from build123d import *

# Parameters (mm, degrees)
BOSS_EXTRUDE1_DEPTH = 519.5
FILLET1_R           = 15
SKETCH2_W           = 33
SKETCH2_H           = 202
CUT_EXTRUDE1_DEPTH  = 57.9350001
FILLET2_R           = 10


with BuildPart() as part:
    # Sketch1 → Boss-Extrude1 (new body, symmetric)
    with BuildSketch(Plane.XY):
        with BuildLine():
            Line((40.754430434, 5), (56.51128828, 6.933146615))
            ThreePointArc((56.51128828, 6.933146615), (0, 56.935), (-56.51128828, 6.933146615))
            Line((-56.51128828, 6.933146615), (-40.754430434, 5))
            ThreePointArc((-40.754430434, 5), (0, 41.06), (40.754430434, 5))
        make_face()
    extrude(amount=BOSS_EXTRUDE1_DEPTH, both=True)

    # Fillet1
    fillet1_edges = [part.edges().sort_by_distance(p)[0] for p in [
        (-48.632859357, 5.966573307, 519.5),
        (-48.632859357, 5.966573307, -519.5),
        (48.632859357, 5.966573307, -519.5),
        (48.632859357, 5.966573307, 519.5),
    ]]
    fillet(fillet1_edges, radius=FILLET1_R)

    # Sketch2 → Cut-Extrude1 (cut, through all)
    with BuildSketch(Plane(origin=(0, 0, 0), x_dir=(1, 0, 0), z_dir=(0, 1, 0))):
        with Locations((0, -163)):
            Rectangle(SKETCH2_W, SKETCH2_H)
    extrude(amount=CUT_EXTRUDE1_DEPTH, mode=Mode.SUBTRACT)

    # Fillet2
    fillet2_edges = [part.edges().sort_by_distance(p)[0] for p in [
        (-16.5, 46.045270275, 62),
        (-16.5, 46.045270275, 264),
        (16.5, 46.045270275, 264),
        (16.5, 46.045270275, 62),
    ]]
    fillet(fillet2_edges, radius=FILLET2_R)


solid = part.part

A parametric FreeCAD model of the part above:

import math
import FreeCAD as App
import Part
import Sketcher


def edges_at(feature, points):
    """Names of the edges that pass closest to the given points."""
    edges = feature.Shape.Edges
    near = lambda p: min(range(len(edges)), key=lambda i: edges[i].distToShape(Part.Vertex(*p))[0])
    return sorted({f"Edge{near(p) + 1}" for p in points})

doc = App.newDocument("Part")
body = doc.addObject("PartDesign::Body", "Body")

# Sketch on XY plane
sketch1 = body.newObject("Sketcher::SketchObject", "Sketch")
sketch1.AttachmentSupport = (doc.getObject("XY_Plane"), [""])
sketch1.MapMode = "FlatFace"
sketch1.addGeometry([
    Part.LineSegment(App.Vector(40.75443, 5, 0), App.Vector(56.511288, 6.933147, 0)),
    Part.ArcOfCircle(Part.Circle(App.Vector(0, 0, 0), App.Vector(0, 0, 1), 56.935), math.radians(6.994439), math.radians(173.005561)),
    Part.LineSegment(App.Vector(-56.511288, 6.933147, 0), App.Vector(-40.75443, 5, 0)),
    Part.ArcOfCircle(Part.Circle(App.Vector(0, 0, 0), App.Vector(0, 0, 1), 41.06), math.radians(6.994439), math.radians(173.005561)),
], False)
sketch1.addConstraint([
    Sketcher.Constraint("Coincident", 0, 2, 1, 1),
    Sketcher.Constraint("Coincident", 1, 2, 2, 1),
    Sketcher.Constraint("Coincident", 2, 2, 3, 2),
    Sketcher.Constraint("Coincident", 3, 1, 0, 1),
    Sketcher.Constraint("Coincident", 1, 3, -1, 1),
    Sketcher.Constraint("Coincident", 3, 3, -1, 1),
    Sketcher.Constraint("Horizontal", 0, 2, 1, 2),
    Sketcher.Constraint("Horizontal", 2, 2, 3, 1),
    Sketcher.Constraint("Radius", 3, 41.06),
    Sketcher.Constraint("DistanceY", -1, 1, 2, 2, 5.0),
    Sketcher.Constraint("Radius", 1, 56.935),
    Sketcher.Constraint("DistanceX", -1, 1, 0, 2, 56.511288),
])
pad1 = body.newObject("PartDesign::Pad", "Pad")
pad1.Profile = sketch1
pad1.Length = 1039
pad1.Midplane = True
doc.recompute()

fillet = body.newObject("PartDesign::Fillet", "Fillet")
fillet.Base = (pad1, edges_at(pad1, [
    (-48.633, 5.967, 519.5),
    (-48.633, 5.967, -519.5),
    (48.633, 5.967, -519.5),
    (48.633, 5.967, 519.5),
]))
fillet.Radius = 15

# Sketch on XZ plane
sketch2 = body.newObject("Sketcher::SketchObject", "Sketch001")
sketch2.AttachmentSupport = (doc.getObject("XZ_Plane"), [""])
sketch2.MapMode = "FlatFace"
sketch2.addGeometry([
    Part.LineSegment(App.Vector(-16.5, 62, 0), App.Vector(-16.5, 264, 0)),
    Part.LineSegment(App.Vector(-16.5, 264, 0), App.Vector(16.5, 264, 0)),
    Part.LineSegment(App.Vector(16.5, 264, 0), App.Vector(16.5, 62, 0)),
    Part.LineSegment(App.Vector(16.5, 62, 0), App.Vector(-16.5, 62, 0)),
], False)
sketch2.addConstraint([
    Sketcher.Constraint("Coincident", 0, 2, 1, 1),
    Sketcher.Constraint("Coincident", 1, 2, 2, 1),
    Sketcher.Constraint("Coincident", 2, 2, 3, 1),
    Sketcher.Constraint("Coincident", 3, 2, 0, 1),
    Sketcher.Constraint("Vertical", 0),
    Sketcher.Constraint("Horizontal", 1),
    Sketcher.Constraint("Vertical", 2),
    Sketcher.Constraint("Horizontal", 3),
    Sketcher.Constraint("DistanceX", 1, 1, 1, 2, 33.0),
    Sketcher.Constraint("DistanceY", 0, 1, 0, 2, 202.0),
    Sketcher.Constraint("DistanceY", -1, 1, 0, 2, 264.0),
    Sketcher.Constraint("DistanceX", 0, 2, -1, 1, 16.5),
])
pocket1 = body.newObject("PartDesign::Pocket", "Pocket")
pocket1.Profile = sketch2
pocket1.Type = "ThroughAll"
doc.recompute()

fillet2 = body.newObject("PartDesign::Fillet", "Fillet001")
fillet2.Base = (pocket1, edges_at(pocket1, [
    (-16.5, 46.045, 62),
    (-16.5, 46.045, 264),
    (16.5, 46.045, 264),
    (16.5, 46.045, 62),
]))
fillet2.Radius = 10

doc.recompute()
